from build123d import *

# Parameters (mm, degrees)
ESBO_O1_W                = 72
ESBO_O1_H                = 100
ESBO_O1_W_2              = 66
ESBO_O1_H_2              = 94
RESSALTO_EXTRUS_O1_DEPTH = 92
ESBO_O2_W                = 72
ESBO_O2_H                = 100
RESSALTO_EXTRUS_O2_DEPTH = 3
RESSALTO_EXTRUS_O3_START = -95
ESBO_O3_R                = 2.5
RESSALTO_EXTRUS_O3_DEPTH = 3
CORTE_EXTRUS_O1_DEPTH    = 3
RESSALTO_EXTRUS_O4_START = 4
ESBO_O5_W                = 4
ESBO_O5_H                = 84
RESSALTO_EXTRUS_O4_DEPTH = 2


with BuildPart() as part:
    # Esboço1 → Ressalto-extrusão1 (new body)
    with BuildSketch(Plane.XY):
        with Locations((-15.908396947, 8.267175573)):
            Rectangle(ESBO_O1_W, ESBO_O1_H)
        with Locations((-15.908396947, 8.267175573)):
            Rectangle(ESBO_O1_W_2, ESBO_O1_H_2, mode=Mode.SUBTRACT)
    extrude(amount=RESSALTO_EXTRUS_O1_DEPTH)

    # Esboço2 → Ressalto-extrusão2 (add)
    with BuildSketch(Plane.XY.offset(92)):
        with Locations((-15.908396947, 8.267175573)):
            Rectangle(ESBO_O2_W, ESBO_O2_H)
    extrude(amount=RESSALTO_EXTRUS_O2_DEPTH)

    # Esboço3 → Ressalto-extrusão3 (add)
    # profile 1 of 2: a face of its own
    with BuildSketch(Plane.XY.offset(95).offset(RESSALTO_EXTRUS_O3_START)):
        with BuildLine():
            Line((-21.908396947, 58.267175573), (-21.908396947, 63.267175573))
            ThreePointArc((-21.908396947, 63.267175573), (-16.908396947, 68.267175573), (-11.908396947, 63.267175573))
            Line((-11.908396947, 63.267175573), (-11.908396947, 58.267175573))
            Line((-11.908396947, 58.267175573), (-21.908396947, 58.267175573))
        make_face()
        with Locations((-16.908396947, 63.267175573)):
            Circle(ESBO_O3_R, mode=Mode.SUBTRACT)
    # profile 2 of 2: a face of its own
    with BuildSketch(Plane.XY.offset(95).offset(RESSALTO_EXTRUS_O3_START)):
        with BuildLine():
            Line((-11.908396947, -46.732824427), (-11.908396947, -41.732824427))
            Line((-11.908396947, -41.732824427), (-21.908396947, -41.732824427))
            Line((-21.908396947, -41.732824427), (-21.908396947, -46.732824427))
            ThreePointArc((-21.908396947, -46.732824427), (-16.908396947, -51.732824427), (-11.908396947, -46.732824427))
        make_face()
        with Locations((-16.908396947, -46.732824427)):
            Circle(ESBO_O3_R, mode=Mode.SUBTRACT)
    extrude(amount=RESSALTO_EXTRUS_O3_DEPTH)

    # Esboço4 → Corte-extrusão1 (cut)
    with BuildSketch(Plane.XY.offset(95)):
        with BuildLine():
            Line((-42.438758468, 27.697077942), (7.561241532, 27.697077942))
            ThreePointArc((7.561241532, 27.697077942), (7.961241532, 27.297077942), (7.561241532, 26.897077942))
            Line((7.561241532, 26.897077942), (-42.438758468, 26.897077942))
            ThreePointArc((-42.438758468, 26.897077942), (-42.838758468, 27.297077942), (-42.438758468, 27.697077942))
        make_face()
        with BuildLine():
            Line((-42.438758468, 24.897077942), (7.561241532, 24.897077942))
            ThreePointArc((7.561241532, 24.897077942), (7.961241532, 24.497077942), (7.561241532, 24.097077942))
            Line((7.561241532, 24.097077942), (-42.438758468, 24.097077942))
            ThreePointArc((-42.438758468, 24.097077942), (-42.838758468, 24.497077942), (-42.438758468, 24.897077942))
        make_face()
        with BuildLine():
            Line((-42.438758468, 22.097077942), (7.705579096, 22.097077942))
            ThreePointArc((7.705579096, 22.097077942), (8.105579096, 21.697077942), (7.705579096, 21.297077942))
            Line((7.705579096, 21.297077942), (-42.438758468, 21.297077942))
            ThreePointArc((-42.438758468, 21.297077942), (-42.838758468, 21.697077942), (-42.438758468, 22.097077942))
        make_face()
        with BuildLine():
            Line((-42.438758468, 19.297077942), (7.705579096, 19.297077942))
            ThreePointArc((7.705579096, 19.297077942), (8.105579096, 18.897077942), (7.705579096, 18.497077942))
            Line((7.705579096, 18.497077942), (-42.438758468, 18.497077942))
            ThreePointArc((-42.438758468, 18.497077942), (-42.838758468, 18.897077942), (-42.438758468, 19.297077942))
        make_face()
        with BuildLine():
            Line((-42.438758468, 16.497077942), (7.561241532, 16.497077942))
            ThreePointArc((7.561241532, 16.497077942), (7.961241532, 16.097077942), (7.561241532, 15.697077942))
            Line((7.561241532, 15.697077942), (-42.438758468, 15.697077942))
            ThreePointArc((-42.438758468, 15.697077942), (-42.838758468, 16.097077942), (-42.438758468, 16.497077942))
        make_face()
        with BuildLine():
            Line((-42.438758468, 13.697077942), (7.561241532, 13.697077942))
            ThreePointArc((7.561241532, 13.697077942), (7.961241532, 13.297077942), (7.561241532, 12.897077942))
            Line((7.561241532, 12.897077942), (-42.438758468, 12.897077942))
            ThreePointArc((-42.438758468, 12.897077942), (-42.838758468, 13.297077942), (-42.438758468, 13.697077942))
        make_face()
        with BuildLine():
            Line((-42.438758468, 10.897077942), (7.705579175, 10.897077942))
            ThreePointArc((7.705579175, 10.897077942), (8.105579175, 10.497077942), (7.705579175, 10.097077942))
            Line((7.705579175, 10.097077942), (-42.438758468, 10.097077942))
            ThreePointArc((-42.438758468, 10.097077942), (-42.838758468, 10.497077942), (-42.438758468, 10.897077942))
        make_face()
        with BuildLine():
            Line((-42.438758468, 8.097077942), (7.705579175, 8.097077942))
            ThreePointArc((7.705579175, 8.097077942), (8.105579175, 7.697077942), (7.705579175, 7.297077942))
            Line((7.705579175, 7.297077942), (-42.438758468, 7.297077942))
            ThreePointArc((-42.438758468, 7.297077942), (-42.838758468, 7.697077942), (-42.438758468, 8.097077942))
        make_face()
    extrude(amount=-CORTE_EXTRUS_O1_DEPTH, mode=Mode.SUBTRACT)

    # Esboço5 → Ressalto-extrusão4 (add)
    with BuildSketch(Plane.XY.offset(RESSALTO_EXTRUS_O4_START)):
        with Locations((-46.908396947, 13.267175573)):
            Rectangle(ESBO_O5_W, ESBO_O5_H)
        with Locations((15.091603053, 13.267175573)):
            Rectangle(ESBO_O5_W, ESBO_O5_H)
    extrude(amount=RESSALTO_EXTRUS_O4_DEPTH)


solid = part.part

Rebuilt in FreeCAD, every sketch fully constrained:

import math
import FreeCAD as App
import Part
import Sketcher

V = App.Vector
Q = App.Units.Quantity

doc = App.newDocument("Part")
params = doc.addObject("Spreadsheet::Sheet", "Params")
for row, (alias, value) in enumerate([
    ("sketch1_width", "72 mm"),
    ("sketch1_width2", "66 mm"),
    ("sketch1_height", "100 mm"),
    ("sketch1_height2", "94 mm"),
    ("pad1_length", "92 mm"),
    ("sketch2_width", "72 mm"),
    ("sketch2_height", "100 mm"),
    ("pad2_length", "3 mm"),
    ("sketch3_diameter", "5 mm"),
    ("sketch3_radius", "5 mm"),
    ("sketch3_height", "5 mm"),
    ("pad3_length", "3 mm"),
    ("sketch4_radius", "0.4 mm"),
    ("sketch4_width", "50 mm"),
    ("pocket1_length", "3 mm"),
    ("sketch5_width", "4 mm"),
    ("sketch5_height", "84 mm"),
    ("pad4_length", "2 mm"),
], start=1):
    params.set(f"A{row}", alias)
    params.set(f"B{row}", "=" + value)
    params.setAlias(f"B{row}", alias)

body = doc.addObject("PartDesign::Body", "Body")

sketch1 = body.newObject("Sketcher::SketchObject", "Sketch")
sketch1.AttachmentSupport = (doc.getObject("XY_Plane"), [""])
sketch1.MapMode = "FlatFace"
sketch1.addGeometry([
    Part.LineSegment(V(-51.908397, 58.267176, 0), V(-51.908397, -41.732824, 0)),
    Part.LineSegment(V(-51.908397, -41.732824, 0), V(20.091603, -41.732824, 0)),
    Part.LineSegment(V(20.091603, -41.732824, 0), V(20.091603, 58.267176, 0)),
    Part.LineSegment(V(20.091603, 58.267176, 0), V(-51.908397, 58.267176, 0)),
    Part.LineSegment(V(17.091603, -38.732824, 0), V(-48.908397, -38.732824, 0)),
    Part.LineSegment(V(-48.908397, -38.732824, 0), V(-48.908397, 55.267176, 0)),
    Part.LineSegment(V(-48.908397, 55.267176, 0), V(17.091603, 55.267176, 0)),
    Part.LineSegment(V(17.091603, 55.267176, 0), V(17.091603, -38.732824, 0)),
], False)
sketch1.addConstraint([
    Sketcher.Constraint("Coincident", 0, 2, 1, 1),
    Sketcher.Constraint("Coincident", 1, 2, 2, 1),
    Sketcher.Constraint("Coincident", 2, 2, 3, 1),
    Sketcher.Constraint("Coincident", 3, 2, 0, 1),
    Sketcher.Constraint("Coincident", 4, 2, 5, 1),
    Sketcher.Constraint("Coincident", 5, 2, 6, 1),
    Sketcher.Constraint("Coincident", 6, 2, 7, 1),
    Sketcher.Constraint("Coincident", 7, 2, 4, 1),
    Sketcher.Constraint("Vertical", 0),
    Sketcher.Constraint("Horizontal", 1),
    Sketcher.Constraint("Vertical", 2),
    Sketcher.Constraint("Horizontal", 3),
    Sketcher.Constraint("Horizontal", 4),
    Sketcher.Constraint("Vertical", 5),
    Sketcher.Constraint("Horizontal", 6),
    Sketcher.Constraint("Vertical", 7),
    Sketcher.Constraint("DistanceX", 1, 1, 1, 2, Q("72 mm")),
    Sketcher.Constraint("DistanceX", 4, 2, 4, 1, Q("66 mm")),
    Sketcher.Constraint("DistanceY", 0, 2, 0, 1, Q("100 mm")),
    Sketcher.Constraint("DistanceY", 5, 1, 5, 2, Q("94 mm")),
    Sketcher.Constraint("DistanceX", 0, 2, 4, 2, Q("3 mm")),
    Sketcher.Constraint("DistanceY", 0, 2, 4, 2, Q("3 mm")),
    Sketcher.Constraint("DistanceX", 0, 2, -1, 1, Q("51.908397 mm")),
    Sketcher.Constraint("DistanceY", 0, 2, -1, 1, Q("41.732824 mm")),
])
sketch1.setExpression("Constraints[16]", "Params.sketch1_width")
sketch1.setExpression("Constraints[17]", "Params.sketch1_width2")
sketch1.setExpression("Constraints[18]", "Params.sketch1_height")
sketch1.setExpression("Constraints[19]", "Params.sketch1_height2")
pad1 = body.newObject("PartDesign::Pad", "Pad")
pad1.Profile = sketch1
pad1.setExpression("Length", "Params.pad1_length")

sketch2 = body.newObject("Sketcher::SketchObject", "Sketch001")
sketch2.AttachmentSupport = (doc.getObject("XY_Plane"), [""])
sketch2.MapMode = "FlatFace"
sketch2.AttachmentOffset = App.Placement(V(0, 0, 92), App.Rotation())
sketch2.addGeometry([
    Part.LineSegment(V(-51.908397, 58.267176, 0), V(-51.908397, -41.732824, 0)),
    Part.LineSegment(V(-51.908397, -41.732824, 0), V(20.091603, -41.732824, 0)),
    Part.LineSegment(V(20.091603, -41.732824, 0), V(20.091603, 58.267176, 0)),
    Part.LineSegment(V(20.091603, 58.267176, 0), V(-51.908397, 58.267176, 0)),
], False)
sketch2.addConstraint([
    Sketcher.Constraint("Coincident", 0, 2, 1, 1),
    Sketcher.Constraint("Coincident", 1, 2, 2, 1),
    Sketcher.Constraint("Coincident", 2, 2, 3, 1),
    Sketcher.Constraint("Coincident", 3, 2, 0, 1),
    Sketcher.Constraint("Vertical", 0),
    Sketcher.Constraint("Horizontal", 1),
    Sketcher.Constraint("Vertical", 2),
    Sketcher.Constraint("Horizontal", 3),
    Sketcher.Constraint("DistanceX", 1, 1, 1, 2, Q("72 mm")),
    Sketcher.Constraint("DistanceY", 0, 2, 0, 1, Q("100 mm")),
    Sketcher.Constraint("DistanceX", 0, 2, -1, 1, Q("51.908397 mm")),
    Sketcher.Constraint("DistanceY", 0, 2, -1, 1, Q("41.732824 mm")),
])
sketch2.setExpression("Constraints[8]", "Params.sketch2_width")
sketch2.setExpression("Constraints[9]", "Params.sketch2_height")
pad2 = body.newObject("PartDesign::Pad", "Pad001")
pad2.Profile = sketch2
pad2.setExpression("Length", "Params.pad2_length")

sketch3 = body.newObject("Sketcher::SketchObject", "Sketch002")
sketch3.AttachmentSupport = (doc.getObject("XY_Plane"), [""])
sketch3.MapMode = "FlatFace"
sketch3.addGeometry([
    Part.LineSegment(V(-21.908397, 63.267176, 0), V(-21.908397, 58.267176, 0)),
    Part.LineSegment(V(-21.908397, 58.267176, 0), V(-11.908397, 58.267176, 0)),
    Part.LineSegment(V(-11.908397, 58.267176, 0), V(-11.908397, 63.267176, 0)),
    Part.ArcOfCircle(Part.Circle(V(-16.908397, 63.267176, 0), V(0, 0, 1), 5), math.radians(0), math.radians(180)),
    Part.Circle(V(-16.908397, 63.267176, 0), V(0, 0, 1), 2.5),
    Part.LineSegment(V(-11.908397, -46.732824, 0), V(-11.908397, -41.732824, 0)),
    Part.LineSegment(V(-11.908397, -41.732824, 0), V(-21.908397, -41.732824, 0)),
    Part.LineSegment(V(-21.908397, -41.732824, 0), V(-21.908397, -46.732824, 0)),
    Part.ArcOfCircle(Part.Circle(V(-16.908397, -46.732824, 0), V(0, 0, 1), 5), math.radians(180), math.radians(360)),
    Part.Circle(V(-16.908397, -46.732824, 0), V(0, 0, 1), 2.5),
], False)
sketch3.addConstraint([
    Sketcher.Constraint("Coincident", 0, 2, 1, 1),
    Sketcher.Constraint("Coincident", 1, 2, 2, 1),
    Sketcher.Constraint("Tangent", 2, 2, 3, 1),
    Sketcher.Constraint("Tangent", 3, 2, 0, 1),
    Sketcher.Constraint("Coincident", 5, 2, 6, 1),
    Sketcher.Constraint("Coincident", 6, 2, 7, 1),
    Sketcher.Constraint("Tangent", 7, 2, 8, 1),
    Sketcher.Constraint("Tangent", 8, 2, 5, 1),
    Sketcher.Constraint("Vertical", 0),
    Sketcher.Constraint("Horizontal", 1),
    Sketcher.Constraint("Vertical", 2),
    Sketcher.Constraint("Vertical", 5),
    Sketcher.Constraint("Horizontal", 6),
    Sketcher.Constraint("Vertical", 7),
    Sketcher.Constraint("Coincident", 4, 3, 3, 3),
    Sketcher.Constraint("Coincident", 9, 3, 8, 3),
    Sketcher.Constraint("Equal", 3, 8),
    Sketcher.Constraint("Equal", 4, 9),
    Sketcher.Constraint("Vertical", 4, 3, 8, 3),
    Sketcher.Constraint("Equal", 2, 5),
    Sketcher.Constraint("Diameter", 4, Q("5 mm")),
    Sketcher.Constraint("Radius", 3, Q("5 mm")),
    Sketcher.Constraint("DistanceY", 0, 2, 0, 1, Q("5 mm")),
    Sketcher.Constraint("DistanceY", 8, 3, 3, 3, Q("110 mm")),
    Sketcher.Constraint("DistanceX", 3, 3, -1, 1, Q("16.908397 mm")),
    Sketcher.Constraint("DistanceY", -1, 1, 3, 3, Q("63.267176 mm")),
])
sketch3.setExpression("Constraints[20]", "Params.sketch3_diameter")
sketch3.setExpression("Constraints[21]", "Params.sketch3_radius")
sketch3.setExpression("Constraints[22]", "Params.sketch3_height")
pad3 = body.newObject("PartDesign::Pad", "Pad002")
pad3.Profile = sketch3
pad3.setExpression("Length", "Params.pad3_length")

sketch4 = body.newObject("Sketcher::SketchObject", "Sketch003")
sketch4.AttachmentSupport = (doc.getObject("XY_Plane"), [""])
sketch4.MapMode = "FlatFace"
sketch4.AttachmentOffset = App.Placement(V(0, 0, 95), App.Rotation())
sketch4.addGeometry([
    Part.LineSegment(V(7.561242, 27.697078, 0), V(-42.438758, 27.697078, 0)),
    Part.ArcOfCircle(Part.Circle(V(-42.438758, 27.297078, 0), V(0, 0, 1), 0.4), math.radians(90), math.radians(270)),
    Part.LineSegment(V(-42.438758, 26.897078, 0), V(7.561242, 26.897078, 0)),
    Part.ArcOfCircle(Part.Circle(V(7.561242, 27.297078, 0), V(0, 0, 1), 0.4), math.radians(-90), math.radians(90)),
    Part.LineSegment(V(7.561242, 24.897078, 0), V(-42.438758, 24.897078, 0)),
    Part.ArcOfCircle(Part.Circle(V(-42.438758, 24.497078, 0), V(0, 0, 1), 0.4), math.radians(90), math.radians(270)),
    Part.LineSegment(V(-42.438758, 24.097078, 0), V(7.561242, 24.097078, 0)),
    Part.ArcOfCircle(Part.Circle(V(7.561242, 24.497078, 0), V(0, 0, 1), 0.4), math.radians(-90), math.radians(90)),
    Part.LineSegment(V(7.705579, 22.097078, 0), V(-42.438758, 22.097078, 0)),
    Part.ArcOfCircle(Part.Circle(V(-42.438758, 21.697078, 0), V(0, 0, 1), 0.4), math.radians(90), math.radians(270)),
    Part.LineSegment(V(-42.438758, 21.297078, 0), V(7.705579, 21.297078, 0)),
    Part.ArcOfCircle(Part.Circle(V(7.705579, 21.697078, 0), V(0, 0, 1), 0.4), math.radians(-90), math.radians(90)),
    Part.LineSegment(V(7.705579, 19.297078, 0), V(-42.438758, 19.297078, 0)),
    Part.ArcOfCircle(Part.Circle(V(-42.438758, 18.897078, 0), V(0, 0, 1), 0.4), math.radians(90), math.radians(270)),
    Part.LineSegment(V(-42.438758, 18.497078, 0), V(7.705579, 18.497078, 0)),
    Part.ArcOfCircle(Part.Circle(V(7.705579, 18.897078, 0), V(0, 0, 1), 0.4), math.radians(-90), math.radians(90)),
    Part.LineSegment(V(7.561242, 16.497078, 0), V(-42.438758, 16.497078, 0)),
    Part.ArcOfCircle(Part.Circle(V(-42.438758, 16.097078, 0), V(0, 0, 1), 0.4), math.radians(90), math.radians(270)),
    Part.LineSegment(V(-42.438758, 15.697078, 0), V(7.561242, 15.697078, 0)),
    Part.ArcOfCircle(Part.Circle(V(7.561242, 16.097078, 0), V(0, 0, 1), 0.4), math.radians(-90), math.radians(90)),
    Part.LineSegment(V(7.561242, 13.697078, 0), V(-42.438758, 13.697078, 0)),
    Part.ArcOfCircle(Part.Circle(V(-42.438758, 13.297078, 0), V(0, 0, 1), 0.4), math.radians(90), math.radians(270)),
    Part.LineSegment(V(-42.438758, 12.897078, 0), V(7.561242, 12.897078, 0)),
    Part.ArcOfCircle(Part.Circle(V(7.561242, 13.297078, 0), V(0, 0, 1), 0.4), math.radians(-90), math.radians(90)),
    Part.LineSegment(V(7.705579, 10.897078, 0), V(-42.438758, 10.897078, 0)),
    Part.ArcOfCircle(Part.Circle(V(-42.438758, 10.497078, 0), V(0, 0, 1), 0.4), math.radians(90), math.radians(270)),
    Part.LineSegment(V(-42.438758, 10.097078, 0), V(7.705579, 10.097078, 0)),
    Part.ArcOfCircle(Part.Circle(V(7.705579, 10.497078, 0), V(0, 0, 1), 0.4), math.radians(-90), math.radians(90)),
    Part.LineSegment(V(7.705579, 8.097078, 0), V(-42.438758, 8.097078, 0)),
    Part.ArcOfCircle(Part.Circle(V(-42.438758, 7.697078, 0), V(0, 0, 1), 0.4), math.radians(90), math.radians(270)),
    Part.LineSegment(V(-42.438758, 7.297078, 0), V(7.705579, 7.297078, 0)),
    Part.ArcOfCircle(Part.Circle(V(7.705579, 7.697078, 0), V(0, 0, 1), 0.4), math.radians(-90), math.radians(90)),
], False)
sketch4.addConstraint([
    Sketcher.Constraint("Tangent", 0, 2, 1, 1),
    Sketcher.Constraint("Tangent", 1, 2, 2, 1),
    Sketcher.Constraint("Tangent", 2, 2, 3, 1),
    Sketcher.Constraint("Tangent", 3, 2, 0, 1),
    Sketcher.Constraint("Tangent", 4, 2, 5, 1),
    Sketcher.Constraint("Tangent", 5, 2, 6, 1),
    Sketcher.Constraint("Tangent", 6, 2, 7, 1),
    Sketcher.Constraint("Tangent", 7, 2, 4, 1),
    Sketcher.Constraint("Tangent", 8, 2, 9, 1),
    Sketcher.Constraint("Tangent", 9, 2, 10, 1),
    Sketcher.Constraint("Tangent", 10, 2, 11, 1),
    Sketcher.Constraint("Tangent", 11, 2, 8, 1),
    Sketcher.Constraint("Tangent", 12, 2, 13, 1),
    Sketcher.Constraint("Tangent", 13, 2, 14, 1),
    Sketcher.Constraint("Tangent", 14, 2, 15, 1),
    Sketcher.Constraint("Tangent", 15, 2, 12, 1),
    Sketcher.Constraint("Tangent", 16, 2, 17, 1),
    Sketcher.Constraint("Tangent", 17, 2, 18, 1),
    Sketcher.Constraint("Tangent", 18, 2, 19, 1),
    Sketcher.Constraint("Tangent", 19, 2, 16, 1),
    Sketcher.Constraint("Tangent", 20, 2, 21, 1),
    Sketcher.Constraint("Tangent", 21, 2, 22, 1),
    Sketcher.Constraint("Tangent", 22, 2, 23, 1),
    Sketcher.Constraint("Tangent", 23, 2, 20, 1),
    Sketcher.Constraint("Tangent", 24, 2, 25, 1),
    Sketcher.Constraint("Tangent", 25, 2, 26, 1),
    Sketcher.Constraint("Tangent", 26, 2, 27, 1),
    Sketcher.Constraint("Tangent", 27, 2, 24, 1),
    Sketcher.Constraint("Tangent", 28, 2, 29, 1),
    Sketcher.Constraint("Tangent", 29, 2, 30, 1),
    Sketcher.Constraint("Tangent", 30, 2, 31, 1),
    Sketcher.Constraint("Tangent", 31, 2, 28, 1),
    Sketcher.Constraint("Horizontal", 0),
    Sketcher.Constraint("Horizontal", 2),
    Sketcher.Constraint("Horizontal", 4),
    Sketcher.Constraint("Horizontal", 6),
    Sketcher.Constraint("Horizontal", 8),
    Sketcher.Constraint("Horizontal", 10),
    Sketcher.Constraint("Horizontal", 12),
    Sketcher.Constraint("Horizontal", 14),
    Sketcher.Constraint("Horizontal", 16),
    Sketcher.Constraint("Horizontal", 18),
    Sketcher.Constraint("Horizontal", 20),
    Sketcher.Constraint("Horizontal", 22),
    Sketcher.Constraint("Horizontal", 24),
    Sketcher.Constraint("Horizontal", 26),
    Sketcher.Constraint("Horizontal", 28),
    Sketcher.Constraint("Horizontal", 30),
    Sketcher.Constraint("Equal", 3, 5),
    Sketcher.Constraint("Equal", 7, 9),
    Sketcher.Constraint("Equal", 11, 13),
    Sketcher.Constraint("Equal", 15, 17),
    Sketcher.Constraint("Equal", 19, 21),
    Sketcher.Constraint("Equal", 23, 25),
    Sketcher.Constraint("Equal", 27, 29),
    Sketcher.Constraint("Vertical", 1, 3, 5, 3),
    Sketcher.Constraint("Vertical", 3, 3, 7, 3),
    Sketcher.Constraint("Vertical", 5, 3, 9, 3),
    Sketcher.Constraint("Vertical", 9, 3, 13, 3),
    Sketcher.Constraint("Vertical", 11, 3, 15, 3),
    Sketcher.Constraint("Vertical", 13, 3, 17, 3),
    Sketcher.Constraint("Vertical", 7, 3, 19, 3),
    Sketcher.Constraint("Vertical", 17, 3, 21, 3),
    Sketcher.Constraint("Vertical", 19, 3, 23, 3),
    Sketcher.Constraint("Vertical", 21, 3, 25, 3),
    Sketcher.Constraint("Vertical", 15, 3, 27, 3),
    Sketcher.Constraint("Vertical", 25, 3, 29, 3),
    Sketcher.Constraint("Vertical", 27, 3, 31, 3),
    Sketcher.Constraint("Radius", 1, Q("0.4 mm")),
    Sketcher.Constraint("DistanceX", 0, 2, 0, 1, Q("50 mm")),
    Sketcher.Constraint("DistanceY", 21, 3, 1, 3, Q("14 mm")),
    Sketcher.Constraint("DistanceY", 25, 3, 5, 3, Q("14 mm")),
    Sketcher.Constraint("DistanceY", 29, 3, 9, 3, Q("14 mm")),
    Sketcher.Constraint("DistanceY", 9, 3, 0, 2, Q("6 mm")),
    Sketcher.Constraint("DistanceY", 13, 3, 1, 2, Q("8 mm")),
    Sketcher.Constraint("DistanceY", 4, 2, 1, 2, Q("2 mm")),
    Sketcher.Constraint("DistanceY", 16, 2, 13, 2, Q("2 mm")),
    Sketcher.Constraint("DistanceX", 8, 2, 8, 1, Q("50.144338 mm")),
    Sketcher.Constraint("DistanceX", 1, 3, -1, 1, Q("42.438758 mm")),
    Sketcher.Constraint("DistanceY", -1, 1, 1, 3, Q("27.297078 mm")),
])
sketch4.setExpression("Constraints[68]", "Params.sketch4_radius")
sketch4.setExpression("Constraints[69]", "Params.sketch4_width")
pocket1 = body.newObject("PartDesign::Pocket", "Pocket")
pocket1.Profile = sketch4
pocket1.setExpression("Length", "Params.pocket1_length")

sketch5 = body.newObject("Sketcher::SketchObject", "Sketch004")
sketch5.AttachmentSupport = (doc.getObject("XY_Plane"), [""])
sketch5.MapMode = "FlatFace"
sketch5.AttachmentOffset = App.Placement(V(0, 0, 4), App.Rotation())
sketch5.addGeometry([
    Part.LineSegment(V(-48.908397, 55.267176, 0), V(-48.908397, -28.732824, 0)),
    Part.LineSegment(V(-48.908397, -28.732824, 0), V(-44.908397, -28.732824, 0)),
    Part.LineSegment(V(-44.908397, -28.732824, 0), V(-44.908397, 55.267176, 0)),
    Part.LineSegment(V(-44.908397, 55.267176, 0), V(-48.908397, 55.267176, 0)),
    Part.LineSegment(V(13.091603, 55.267176, 0), V(13.091603, -28.732824, 0)),
    Part.LineSegment(V(13.091603, -28.732824, 0), V(17.091603, -28.732824, 0)),
    Part.LineSegment(V(17.091603, -28.732824, 0), V(17.091603, 55.267176, 0)),
    Part.LineSegment(V(17.091603, 55.267176, 0), V(13.091603, 55.267176, 0)),
], False)
sketch5.addConstraint([
    Sketcher.Constraint("Coincident", 0, 2, 1, 1),
    Sketcher.Constraint("Coincident", 1, 2, 2, 1),
    Sketcher.Constraint("Coincident", 2, 2, 3, 1),
    Sketcher.Constraint("Coincident", 3, 2, 0, 1),
    Sketcher.Constraint("Coincident", 4, 2, 5, 1),
    Sketcher.Constraint("Coincident", 5, 2, 6, 1),
    Sketcher.Constraint("Coincident", 6, 2, 7, 1),
    Sketcher.Constraint("Coincident", 7, 2, 4, 1),
    Sketcher.Constraint("Vertical", 0),
    Sketcher.Constraint("Horizontal", 1),
    Sketcher.Constraint("Vertical", 2),
    Sketcher.Constraint("Horizontal", 3),
    Sketcher.Constraint("Vertical", 4),
    Sketcher.Constraint("Horizontal", 5),
    Sketcher.Constraint("Vertical", 6),
    Sketcher.Constraint("Horizontal", 7),
    Sketcher.Constraint("Horizontal", 1, 2, 4, 2),
    Sketcher.Constraint("Horizontal", 3, 2, 6, 2),
    Sketcher.Constraint("Equal", 3, 5),
    Sketcher.Constraint("DistanceX", 1, 1, 1, 2, Q("4 mm")),
    Sketcher.Constraint("DistanceY", 0, 2, 0, 1, Q("84 mm")),
    Sketcher.Constraint("DistanceX", 1, 2, 4, 2, Q("58 mm")),
    Sketcher.Constraint("DistanceX", 0, 2, -1, 1, Q("48.908397 mm")),
    Sketcher.Constraint("DistanceY", 0, 2, -1, 1, Q("28.732824 mm")),
])
sketch5.setExpression("Constraints[19]", "Params.sketch5_width")
sketch5.setExpression("Constraints[20]", "Params.sketch5_height")
pad4 = body.newObject("PartDesign::Pad", "Pad003")
pad4.Profile = sketch5
pad4.setExpression("Length", "Params.pad4_length")

doc.recompute()
